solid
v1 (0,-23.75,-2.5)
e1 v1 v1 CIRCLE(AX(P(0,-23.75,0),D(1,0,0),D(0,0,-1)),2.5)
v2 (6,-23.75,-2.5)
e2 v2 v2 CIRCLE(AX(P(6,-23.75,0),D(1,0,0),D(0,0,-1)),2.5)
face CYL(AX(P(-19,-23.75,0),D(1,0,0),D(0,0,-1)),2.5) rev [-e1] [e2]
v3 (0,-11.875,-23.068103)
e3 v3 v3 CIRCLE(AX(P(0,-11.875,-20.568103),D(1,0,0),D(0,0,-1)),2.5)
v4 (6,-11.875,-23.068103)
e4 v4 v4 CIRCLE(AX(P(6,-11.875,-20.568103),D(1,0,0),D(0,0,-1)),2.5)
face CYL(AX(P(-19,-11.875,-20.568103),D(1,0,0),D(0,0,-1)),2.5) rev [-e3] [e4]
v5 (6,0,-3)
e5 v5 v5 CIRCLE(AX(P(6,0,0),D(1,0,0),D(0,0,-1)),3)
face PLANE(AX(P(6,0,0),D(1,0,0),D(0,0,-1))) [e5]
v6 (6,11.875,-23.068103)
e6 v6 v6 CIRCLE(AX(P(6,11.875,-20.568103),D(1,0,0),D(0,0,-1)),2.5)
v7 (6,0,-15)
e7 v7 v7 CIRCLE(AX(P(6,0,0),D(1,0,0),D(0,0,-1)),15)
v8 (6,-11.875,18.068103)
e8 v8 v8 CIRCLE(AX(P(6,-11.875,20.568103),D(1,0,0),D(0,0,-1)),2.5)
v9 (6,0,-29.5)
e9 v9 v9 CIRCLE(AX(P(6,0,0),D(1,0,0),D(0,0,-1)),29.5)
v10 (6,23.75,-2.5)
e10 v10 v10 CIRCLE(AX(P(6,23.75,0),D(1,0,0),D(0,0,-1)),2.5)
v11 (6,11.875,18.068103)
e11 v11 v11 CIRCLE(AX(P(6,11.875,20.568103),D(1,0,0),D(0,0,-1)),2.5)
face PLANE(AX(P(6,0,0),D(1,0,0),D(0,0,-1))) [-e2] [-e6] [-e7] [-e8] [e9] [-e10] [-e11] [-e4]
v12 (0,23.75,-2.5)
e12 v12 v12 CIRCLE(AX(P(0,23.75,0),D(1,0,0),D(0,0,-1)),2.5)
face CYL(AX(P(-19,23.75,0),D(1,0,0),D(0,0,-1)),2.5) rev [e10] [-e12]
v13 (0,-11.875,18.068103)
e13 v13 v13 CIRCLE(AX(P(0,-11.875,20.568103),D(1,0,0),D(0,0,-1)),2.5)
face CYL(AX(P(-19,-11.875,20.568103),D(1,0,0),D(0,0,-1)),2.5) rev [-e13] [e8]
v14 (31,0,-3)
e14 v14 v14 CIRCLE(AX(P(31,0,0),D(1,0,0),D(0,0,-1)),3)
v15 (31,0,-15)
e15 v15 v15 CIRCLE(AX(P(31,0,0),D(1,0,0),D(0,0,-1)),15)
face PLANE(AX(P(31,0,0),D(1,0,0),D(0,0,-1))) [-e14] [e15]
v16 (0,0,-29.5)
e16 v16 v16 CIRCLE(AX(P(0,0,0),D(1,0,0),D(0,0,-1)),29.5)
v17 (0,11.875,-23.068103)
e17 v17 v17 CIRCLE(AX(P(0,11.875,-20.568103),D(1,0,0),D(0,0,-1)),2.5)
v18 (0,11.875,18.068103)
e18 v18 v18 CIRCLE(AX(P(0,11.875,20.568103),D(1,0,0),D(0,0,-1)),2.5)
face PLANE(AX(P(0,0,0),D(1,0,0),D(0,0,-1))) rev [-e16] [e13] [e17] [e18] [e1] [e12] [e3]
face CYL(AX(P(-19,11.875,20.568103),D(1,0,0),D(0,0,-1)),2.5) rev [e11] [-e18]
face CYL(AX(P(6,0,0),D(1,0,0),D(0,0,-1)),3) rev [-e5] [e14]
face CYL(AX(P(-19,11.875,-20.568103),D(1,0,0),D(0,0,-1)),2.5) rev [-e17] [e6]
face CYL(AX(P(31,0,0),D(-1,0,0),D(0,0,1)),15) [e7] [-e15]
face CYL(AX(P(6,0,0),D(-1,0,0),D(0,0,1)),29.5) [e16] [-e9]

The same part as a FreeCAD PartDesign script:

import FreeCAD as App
import Part
import Sketcher

V = App.Vector
Q = App.Units.Quantity

doc = App.newDocument("Part")
body = doc.addObject("PartDesign::Body", "Body")

sketch1 = body.newObject("Sketcher::SketchObject", "Sketch")
sketch1.AttachmentSupport = (doc.getObject("YZ_Plane"), [""])
sketch1.MapMode = "FlatFace"
sketch1.addGeometry(Part.Circle(V(0, 0, 0), V(0, 0, 1), 30), False)
sketch1.addConstraint(Sketcher.Constraint("Coincident", 0, 3, -1, 1))
sketch1.addConstraint(Sketcher.Constraint("Diameter", 0, Q("59 mm")))
pad1 = body.newObject("PartDesign::Pad", "Pad")
pad1.Profile = sketch1
pad1.Length = 6

sketch2 = body.newObject("Sketcher::SketchObject", "Sketch001")
sketch2.AttachmentSupport = (doc.getObject("YZ_Plane"), [""])
sketch2.MapMode = "FlatFace"
sketch2.AttachmentOffset = App.Placement(V(0, 0, 6), App.Rotation())
sketch2.addGeometry(Part.Circle(V(0, 0, 0), V(0, 0, 1), 15), False)
sketch2.addConstraint(Sketcher.Constraint("Coincident", 0, 3, -1, 1))
sketch2.addConstraint(Sketcher.Constraint("Diameter", 0, Q("30 mm")))
pad2 = body.newObject("PartDesign::Pad", "Pad001")
pad2.Profile = sketch2
pad2.Length = 25

sketch3 = body.newObject("Sketcher::SketchObject", "Sketch002")
sketch3.AttachmentSupport = (doc.getObject("YZ_Plane"), [""])
sketch3.MapMode = "FlatFace"
sketch3.AttachmentOffset = App.Placement(V(0, 0, 31), App.Rotation())
sketch3.addGeometry(Part.Circle(V(0, 0, 0), V(0, 0, 1), 3), False)
sketch3.addConstraint(Sketcher.Constraint("Coincident", 0, 3, -1, 1))
sketch3.addConstraint(Sketcher.Constraint("Diameter", 0, Q("6 mm")))
pocket1 = body.newObject("PartDesign::Pocket", "Pocket")
pocket1.Profile = sketch3
pocket1.Length = 25

sketch4 = body.newObject("Sketcher::SketchObject", "Sketch003")
sketch4.AttachmentSupport = (doc.getObject("YZ_Plane"), [""])
sketch4.MapMode = "FlatFace"
sketch4.AttachmentOffset = App.Placement(V(0, 0, 6), App.Rotation())
sketch4.addGeometry(Part.Circle(V(23.8, 0, 0), V(0, 0, 1), 2.5), False)
sketch4.addGeometry(Part.Circle(V(11.9, -20.6, 0), V(0, 0, 1), 2.5), False)
sketch4.addGeometry(Part.Circle(V(-11.9, -20.6, 0), V(0, 0, 1), 2.5), False)
sketch4.addGeometry(Part.Circle(V(-23.8, 0, 0), V(0, 0, 1), 2.5), False)
sketch4.addGeometry(Part.Circle(V(-11.9, 20.6, 0), V(0, 0, 1), 2.5), False)
sketch4.addGeometry(Part.Circle(V(11.9, 20.6, 0), V(0, 0, 1), 2.5), False)
sketch4.addConstraint(Sketcher.Constraint("Equal", 0, 1))
sketch4.addConstraint(Sketcher.Constraint("Equal", 1, 2))
sketch4.addConstraint(Sketcher.Constraint("Equal", 2, 3))
sketch4.addConstraint(Sketcher.Constraint("Equal", 3, 4))
sketch4.addConstraint(Sketcher.Constraint("Equal", 4, 5))
sketch4.addConstraint(Sketcher.Constraint("Symmetric", 0, 3, 3, 3, -1, 1))
sketch4.addConstraint(Sketcher.Constraint("Symmetric", 1, 3, 4, 3, -1, 1))
sketch4.addConstraint(Sketcher.Constraint("Symmetric", 2, 3, 5, 3, -1, 1))
sketch4.addConstraint(Sketcher.Constraint("Symmetric", 1, 3, 2, 3, -2))
sketch4.addConstraint(Sketcher.Constraint("PointOnObject", 0, 3, -1))
sketch4.addConstraint(Sketcher.Constraint("Diameter", 0, Q("5 mm")))
sketch4.addConstraint(Sketcher.Constraint("DistanceX", 3, 3, 0, 3, Q("47.5 mm")))
sketch4.addConstraint(Sketcher.Constraint("DistanceX", 2, 3, 1, 3, Q("23.75 mm")))
sketch4.addConstraint(Sketcher.Constraint("DistanceY", 1, 3, -1, 1, Q("20.568103 mm")))
pocket2 = body.newObject("PartDesign::Pocket", "Pocket001")
pocket2.Profile = sketch4
pocket2.Length = 25

doc.recompute()
